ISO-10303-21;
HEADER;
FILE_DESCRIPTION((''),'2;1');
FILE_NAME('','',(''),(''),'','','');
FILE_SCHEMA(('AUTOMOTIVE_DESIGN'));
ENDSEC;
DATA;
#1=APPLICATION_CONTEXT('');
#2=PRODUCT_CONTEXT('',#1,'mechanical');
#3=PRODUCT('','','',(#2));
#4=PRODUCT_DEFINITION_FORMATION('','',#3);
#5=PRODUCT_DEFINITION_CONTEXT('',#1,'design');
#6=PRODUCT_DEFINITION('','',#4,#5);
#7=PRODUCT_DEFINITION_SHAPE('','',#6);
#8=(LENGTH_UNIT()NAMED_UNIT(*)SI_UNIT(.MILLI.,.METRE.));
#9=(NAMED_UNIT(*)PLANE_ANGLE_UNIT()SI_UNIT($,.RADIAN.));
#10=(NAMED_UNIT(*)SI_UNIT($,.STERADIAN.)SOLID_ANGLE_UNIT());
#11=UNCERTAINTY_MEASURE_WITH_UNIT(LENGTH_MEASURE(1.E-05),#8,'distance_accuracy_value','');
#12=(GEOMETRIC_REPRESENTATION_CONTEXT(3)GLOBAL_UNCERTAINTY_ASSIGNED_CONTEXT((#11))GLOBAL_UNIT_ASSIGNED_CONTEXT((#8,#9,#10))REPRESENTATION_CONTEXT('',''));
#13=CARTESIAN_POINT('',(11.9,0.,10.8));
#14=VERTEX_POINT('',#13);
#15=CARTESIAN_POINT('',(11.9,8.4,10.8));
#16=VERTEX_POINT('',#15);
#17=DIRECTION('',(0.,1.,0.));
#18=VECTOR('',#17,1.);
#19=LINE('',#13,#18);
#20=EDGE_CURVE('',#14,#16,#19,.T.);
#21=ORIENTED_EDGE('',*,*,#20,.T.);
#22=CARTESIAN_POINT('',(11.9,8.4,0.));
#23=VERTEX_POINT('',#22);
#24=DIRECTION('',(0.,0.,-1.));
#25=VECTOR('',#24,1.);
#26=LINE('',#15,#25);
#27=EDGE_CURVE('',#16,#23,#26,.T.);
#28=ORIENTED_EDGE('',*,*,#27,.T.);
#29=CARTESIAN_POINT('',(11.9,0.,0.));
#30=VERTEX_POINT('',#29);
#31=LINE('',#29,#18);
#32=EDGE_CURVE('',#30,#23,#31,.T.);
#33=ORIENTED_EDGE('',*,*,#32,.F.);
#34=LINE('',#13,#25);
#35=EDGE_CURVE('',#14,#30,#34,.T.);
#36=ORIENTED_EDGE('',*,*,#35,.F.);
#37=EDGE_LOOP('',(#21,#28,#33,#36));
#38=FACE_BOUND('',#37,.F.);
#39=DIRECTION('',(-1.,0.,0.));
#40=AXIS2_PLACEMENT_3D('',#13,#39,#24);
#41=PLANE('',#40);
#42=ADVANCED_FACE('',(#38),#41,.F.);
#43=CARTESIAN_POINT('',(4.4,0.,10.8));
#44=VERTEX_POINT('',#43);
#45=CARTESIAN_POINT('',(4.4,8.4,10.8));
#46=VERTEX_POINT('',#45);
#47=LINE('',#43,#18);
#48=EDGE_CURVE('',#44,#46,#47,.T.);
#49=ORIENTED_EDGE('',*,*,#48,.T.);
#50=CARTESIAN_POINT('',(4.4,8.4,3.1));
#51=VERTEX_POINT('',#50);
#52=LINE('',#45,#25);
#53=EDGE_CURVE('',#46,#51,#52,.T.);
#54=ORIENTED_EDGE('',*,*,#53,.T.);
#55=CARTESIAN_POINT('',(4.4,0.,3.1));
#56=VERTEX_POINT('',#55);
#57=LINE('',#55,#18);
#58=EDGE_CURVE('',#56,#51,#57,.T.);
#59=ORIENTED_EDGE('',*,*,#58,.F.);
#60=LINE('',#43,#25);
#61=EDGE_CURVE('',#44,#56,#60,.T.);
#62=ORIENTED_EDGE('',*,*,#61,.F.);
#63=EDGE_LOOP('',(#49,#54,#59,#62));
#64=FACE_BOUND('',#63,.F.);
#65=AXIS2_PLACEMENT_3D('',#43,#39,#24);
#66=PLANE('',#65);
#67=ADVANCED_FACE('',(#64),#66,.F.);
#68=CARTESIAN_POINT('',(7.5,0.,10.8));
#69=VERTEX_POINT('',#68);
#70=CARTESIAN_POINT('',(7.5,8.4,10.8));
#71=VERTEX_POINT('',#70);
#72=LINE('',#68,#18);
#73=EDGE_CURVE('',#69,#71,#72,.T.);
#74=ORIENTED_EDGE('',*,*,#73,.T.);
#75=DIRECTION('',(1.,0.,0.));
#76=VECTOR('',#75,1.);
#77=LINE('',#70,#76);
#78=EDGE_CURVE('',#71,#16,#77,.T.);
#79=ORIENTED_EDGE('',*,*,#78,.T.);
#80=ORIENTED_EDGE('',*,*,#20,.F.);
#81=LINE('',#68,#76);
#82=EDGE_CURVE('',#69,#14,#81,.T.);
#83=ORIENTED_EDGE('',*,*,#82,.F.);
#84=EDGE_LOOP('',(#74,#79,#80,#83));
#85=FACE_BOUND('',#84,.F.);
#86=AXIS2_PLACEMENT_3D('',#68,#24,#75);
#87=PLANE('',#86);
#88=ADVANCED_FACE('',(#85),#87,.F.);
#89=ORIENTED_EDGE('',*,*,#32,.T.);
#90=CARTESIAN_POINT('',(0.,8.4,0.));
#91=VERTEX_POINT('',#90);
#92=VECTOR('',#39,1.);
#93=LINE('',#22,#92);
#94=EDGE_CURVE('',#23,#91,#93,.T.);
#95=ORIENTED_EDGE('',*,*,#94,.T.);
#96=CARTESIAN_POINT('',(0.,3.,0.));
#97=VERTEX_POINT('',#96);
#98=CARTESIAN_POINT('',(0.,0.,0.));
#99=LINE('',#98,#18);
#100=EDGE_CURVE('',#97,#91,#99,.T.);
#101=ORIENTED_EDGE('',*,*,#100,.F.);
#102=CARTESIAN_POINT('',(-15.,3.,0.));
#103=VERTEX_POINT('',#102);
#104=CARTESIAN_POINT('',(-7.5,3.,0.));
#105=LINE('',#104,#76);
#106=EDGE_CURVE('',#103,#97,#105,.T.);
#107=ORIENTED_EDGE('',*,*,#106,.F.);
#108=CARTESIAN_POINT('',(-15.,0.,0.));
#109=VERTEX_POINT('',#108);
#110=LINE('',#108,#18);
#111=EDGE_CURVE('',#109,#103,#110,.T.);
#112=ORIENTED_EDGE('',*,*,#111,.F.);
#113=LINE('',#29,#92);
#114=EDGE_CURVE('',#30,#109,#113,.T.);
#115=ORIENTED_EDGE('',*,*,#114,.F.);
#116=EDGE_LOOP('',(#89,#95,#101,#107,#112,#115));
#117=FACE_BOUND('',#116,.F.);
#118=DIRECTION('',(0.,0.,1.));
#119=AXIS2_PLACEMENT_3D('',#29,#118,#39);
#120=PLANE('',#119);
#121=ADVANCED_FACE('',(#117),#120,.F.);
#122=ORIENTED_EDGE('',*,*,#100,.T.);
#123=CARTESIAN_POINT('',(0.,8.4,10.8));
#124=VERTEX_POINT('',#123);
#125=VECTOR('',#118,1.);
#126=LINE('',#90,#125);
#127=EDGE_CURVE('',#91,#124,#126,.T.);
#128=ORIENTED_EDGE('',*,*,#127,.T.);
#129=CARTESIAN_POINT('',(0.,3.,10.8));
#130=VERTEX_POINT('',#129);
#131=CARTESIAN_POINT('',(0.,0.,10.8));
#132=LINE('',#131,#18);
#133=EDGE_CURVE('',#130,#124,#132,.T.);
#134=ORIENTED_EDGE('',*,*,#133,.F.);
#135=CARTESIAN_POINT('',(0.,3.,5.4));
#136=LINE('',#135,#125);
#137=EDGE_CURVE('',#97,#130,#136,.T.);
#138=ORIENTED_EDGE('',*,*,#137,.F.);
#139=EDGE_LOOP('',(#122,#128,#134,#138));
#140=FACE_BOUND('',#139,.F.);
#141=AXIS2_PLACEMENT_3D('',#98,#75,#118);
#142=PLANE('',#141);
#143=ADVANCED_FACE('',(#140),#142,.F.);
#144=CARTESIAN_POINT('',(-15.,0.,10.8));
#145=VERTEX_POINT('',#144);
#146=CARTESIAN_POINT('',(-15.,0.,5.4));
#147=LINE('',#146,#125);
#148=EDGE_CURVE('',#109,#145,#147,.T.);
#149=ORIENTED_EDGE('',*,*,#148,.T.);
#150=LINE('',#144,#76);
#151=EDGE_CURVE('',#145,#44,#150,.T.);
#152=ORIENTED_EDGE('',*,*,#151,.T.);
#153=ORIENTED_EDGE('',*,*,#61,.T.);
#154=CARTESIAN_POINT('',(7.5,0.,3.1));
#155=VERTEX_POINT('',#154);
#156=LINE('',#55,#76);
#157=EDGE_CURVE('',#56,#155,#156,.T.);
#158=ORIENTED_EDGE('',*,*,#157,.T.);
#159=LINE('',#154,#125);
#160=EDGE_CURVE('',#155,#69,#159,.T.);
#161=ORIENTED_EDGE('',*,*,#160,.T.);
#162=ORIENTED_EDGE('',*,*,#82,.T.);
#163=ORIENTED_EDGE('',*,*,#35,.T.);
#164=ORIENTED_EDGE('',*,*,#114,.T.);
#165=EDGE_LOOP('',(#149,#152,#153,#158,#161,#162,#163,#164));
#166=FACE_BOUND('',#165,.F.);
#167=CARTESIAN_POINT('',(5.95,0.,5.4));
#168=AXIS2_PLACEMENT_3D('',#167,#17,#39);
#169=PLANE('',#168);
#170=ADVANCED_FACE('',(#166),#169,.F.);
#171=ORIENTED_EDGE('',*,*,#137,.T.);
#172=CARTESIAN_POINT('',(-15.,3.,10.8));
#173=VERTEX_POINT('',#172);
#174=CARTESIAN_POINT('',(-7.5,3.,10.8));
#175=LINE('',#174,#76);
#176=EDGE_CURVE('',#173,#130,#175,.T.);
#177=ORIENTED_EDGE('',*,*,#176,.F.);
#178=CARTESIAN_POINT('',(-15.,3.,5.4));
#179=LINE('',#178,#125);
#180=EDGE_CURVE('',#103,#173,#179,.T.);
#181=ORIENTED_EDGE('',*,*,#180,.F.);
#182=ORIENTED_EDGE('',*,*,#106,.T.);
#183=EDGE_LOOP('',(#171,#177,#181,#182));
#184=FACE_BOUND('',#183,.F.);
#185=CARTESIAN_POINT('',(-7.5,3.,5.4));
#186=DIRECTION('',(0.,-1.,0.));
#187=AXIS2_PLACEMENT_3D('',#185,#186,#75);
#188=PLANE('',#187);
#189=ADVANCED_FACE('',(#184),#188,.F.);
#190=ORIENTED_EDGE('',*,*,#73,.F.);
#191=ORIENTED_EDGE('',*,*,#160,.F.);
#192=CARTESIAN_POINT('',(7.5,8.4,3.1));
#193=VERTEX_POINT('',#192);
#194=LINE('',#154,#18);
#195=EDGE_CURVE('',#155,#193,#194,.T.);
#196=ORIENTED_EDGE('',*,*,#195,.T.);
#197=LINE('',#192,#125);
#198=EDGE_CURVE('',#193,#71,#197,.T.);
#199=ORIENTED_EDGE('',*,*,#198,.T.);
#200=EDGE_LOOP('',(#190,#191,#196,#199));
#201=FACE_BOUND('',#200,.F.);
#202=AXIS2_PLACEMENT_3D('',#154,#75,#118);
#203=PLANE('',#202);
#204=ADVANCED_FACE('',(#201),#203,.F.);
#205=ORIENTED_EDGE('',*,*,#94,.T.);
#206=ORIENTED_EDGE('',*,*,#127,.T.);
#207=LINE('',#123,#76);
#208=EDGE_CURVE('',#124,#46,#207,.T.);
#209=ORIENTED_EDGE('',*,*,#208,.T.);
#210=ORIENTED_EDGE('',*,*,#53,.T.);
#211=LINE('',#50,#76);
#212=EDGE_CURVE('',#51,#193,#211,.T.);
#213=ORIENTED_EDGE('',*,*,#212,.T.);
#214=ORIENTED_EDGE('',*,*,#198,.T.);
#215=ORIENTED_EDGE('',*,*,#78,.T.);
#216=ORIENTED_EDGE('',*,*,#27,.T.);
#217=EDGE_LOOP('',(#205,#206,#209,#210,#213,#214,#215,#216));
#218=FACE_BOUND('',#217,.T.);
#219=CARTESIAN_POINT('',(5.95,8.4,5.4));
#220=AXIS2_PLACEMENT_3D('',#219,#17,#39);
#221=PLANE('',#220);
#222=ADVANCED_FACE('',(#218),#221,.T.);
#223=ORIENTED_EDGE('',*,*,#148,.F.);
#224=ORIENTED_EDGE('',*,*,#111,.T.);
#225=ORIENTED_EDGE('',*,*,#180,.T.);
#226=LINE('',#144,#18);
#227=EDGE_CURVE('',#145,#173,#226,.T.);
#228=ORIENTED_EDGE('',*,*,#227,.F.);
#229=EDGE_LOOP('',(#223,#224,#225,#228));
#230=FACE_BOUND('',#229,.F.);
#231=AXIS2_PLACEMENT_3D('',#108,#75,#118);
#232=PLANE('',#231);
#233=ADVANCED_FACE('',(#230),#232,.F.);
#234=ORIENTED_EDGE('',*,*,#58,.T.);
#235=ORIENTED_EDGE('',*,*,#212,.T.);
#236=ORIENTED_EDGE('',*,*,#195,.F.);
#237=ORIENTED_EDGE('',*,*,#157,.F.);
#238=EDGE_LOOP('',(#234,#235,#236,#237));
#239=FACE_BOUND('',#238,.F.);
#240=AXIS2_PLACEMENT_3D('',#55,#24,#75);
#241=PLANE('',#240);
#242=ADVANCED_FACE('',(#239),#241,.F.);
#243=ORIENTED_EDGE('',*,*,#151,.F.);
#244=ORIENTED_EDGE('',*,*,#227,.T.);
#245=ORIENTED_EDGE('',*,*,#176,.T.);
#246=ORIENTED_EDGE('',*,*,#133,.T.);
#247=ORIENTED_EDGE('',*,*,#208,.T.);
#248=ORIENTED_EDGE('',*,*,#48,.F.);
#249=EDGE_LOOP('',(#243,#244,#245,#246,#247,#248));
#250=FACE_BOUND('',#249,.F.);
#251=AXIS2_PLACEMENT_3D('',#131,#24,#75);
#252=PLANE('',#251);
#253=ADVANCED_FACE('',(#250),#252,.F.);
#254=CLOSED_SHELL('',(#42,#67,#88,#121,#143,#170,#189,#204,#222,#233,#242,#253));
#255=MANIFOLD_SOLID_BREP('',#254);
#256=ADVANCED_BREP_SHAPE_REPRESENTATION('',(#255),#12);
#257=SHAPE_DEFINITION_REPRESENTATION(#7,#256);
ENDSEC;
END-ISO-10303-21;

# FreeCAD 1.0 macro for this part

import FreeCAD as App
import Part
import Sketcher


def add_polygon(sketch, points):
    """Adds a closed chain of lines whose ends are joined by coincident constraints."""
    first, n = sketch.GeometryCount, len(points)
    for a, b in zip(points, points[1:] + points[:1]):
        sketch.addGeometry(Part.LineSegment(App.Vector(*a, 0), App.Vector(*b, 0)), False)
    for i in range(n):
        sketch.addConstraint(Sketcher.Constraint("Coincident", first + i, 2, first + (i + 1) % n, 1))

doc = App.newDocument("Part")
body = doc.addObject("PartDesign::Body", "Body")

# Sketch on XZ plane
sketch1 = doc.addObject("Sketcher::SketchObject", "Sketch")
body.addObject(sketch1)
sketch1.AttachmentSupport = (doc.XZ_Plane, [""])
sketch1.MapMode = "FlatFace"
add_polygon(sketch1, [(-15, 10.8), (-15, 0), (0, 0), (0, 10.8)])  # lines 0-3
sketch1.addConstraint([
    Sketcher.Constraint("Vertical", 0),
    Sketcher.Constraint("Horizontal", 1),
    Sketcher.Constraint("Vertical", 2),
    Sketcher.Constraint("Horizontal", 3),
    Sketcher.Constraint("Coincident", 1, 2, -1, 1),
    Sketcher.Constraint("DistanceX", 1, 1, 1, 2, 15.0),
    Sketcher.Constraint("DistanceY", 0, 2, 0, 1, 10.8),
])
pad1 = doc.addObject("PartDesign::Pad", "Pad")
body.addObject(pad1)
pad1.Profile = sketch1
pad1.Length = 3
pad1.Reversed = True

# Sketch on XZ plane
sketch2 = doc.addObject("Sketcher::SketchObject", "Sketch001")
body.addObject(sketch2)
sketch2.AttachmentSupport = (doc.XZ_Plane, [""])
sketch2.MapMode = "FlatFace"
add_polygon(sketch2, [(0, 10.8), (0, 0), (11.9, 0), (11.9, 10.8), (7.5, 10.8), (7.5, 3.1), (4.4, 3.1), (4.4, 10.8)])  # lines 0-7
sketch2.addConstraint([
    Sketcher.Constraint("Vertical", 0),
    Sketcher.Constraint("Horizontal", 1),
    Sketcher.Constraint("Vertical", 2),
    Sketcher.Constraint("Horizontal", 3),
    Sketcher.Constraint("Vertical", 4),
    Sketcher.Constraint("Horizontal", 5),
    Sketcher.Constraint("Vertical", 6),
    Sketcher.Constraint("Horizontal", 7),
    Sketcher.Constraint("Coincident", 0, 2, -1, 1),
    Sketcher.Constraint("Horizontal", 3, 2, 6, 2),
    Sketcher.Constraint("Equal", 3, 7),
    Sketcher.Constraint("DistanceX", 1, 1, 1, 2, 11.9),
    Sketcher.Constraint("DistanceX", 3, 2, 3, 1, 4.4),
    Sketcher.Constraint("DistanceY", 0, 2, 0, 1, 10.8),
    Sketcher.Constraint("DistanceY", 4, 2, 4, 1, 7.7),
])
pad2 = doc.addObject("PartDesign::Pad", "Pad001")
body.addObject(pad2)
pad2.Profile = sketch2
pad2.Length = 8.4
pad2.Reversed = True

doc.recompute()
